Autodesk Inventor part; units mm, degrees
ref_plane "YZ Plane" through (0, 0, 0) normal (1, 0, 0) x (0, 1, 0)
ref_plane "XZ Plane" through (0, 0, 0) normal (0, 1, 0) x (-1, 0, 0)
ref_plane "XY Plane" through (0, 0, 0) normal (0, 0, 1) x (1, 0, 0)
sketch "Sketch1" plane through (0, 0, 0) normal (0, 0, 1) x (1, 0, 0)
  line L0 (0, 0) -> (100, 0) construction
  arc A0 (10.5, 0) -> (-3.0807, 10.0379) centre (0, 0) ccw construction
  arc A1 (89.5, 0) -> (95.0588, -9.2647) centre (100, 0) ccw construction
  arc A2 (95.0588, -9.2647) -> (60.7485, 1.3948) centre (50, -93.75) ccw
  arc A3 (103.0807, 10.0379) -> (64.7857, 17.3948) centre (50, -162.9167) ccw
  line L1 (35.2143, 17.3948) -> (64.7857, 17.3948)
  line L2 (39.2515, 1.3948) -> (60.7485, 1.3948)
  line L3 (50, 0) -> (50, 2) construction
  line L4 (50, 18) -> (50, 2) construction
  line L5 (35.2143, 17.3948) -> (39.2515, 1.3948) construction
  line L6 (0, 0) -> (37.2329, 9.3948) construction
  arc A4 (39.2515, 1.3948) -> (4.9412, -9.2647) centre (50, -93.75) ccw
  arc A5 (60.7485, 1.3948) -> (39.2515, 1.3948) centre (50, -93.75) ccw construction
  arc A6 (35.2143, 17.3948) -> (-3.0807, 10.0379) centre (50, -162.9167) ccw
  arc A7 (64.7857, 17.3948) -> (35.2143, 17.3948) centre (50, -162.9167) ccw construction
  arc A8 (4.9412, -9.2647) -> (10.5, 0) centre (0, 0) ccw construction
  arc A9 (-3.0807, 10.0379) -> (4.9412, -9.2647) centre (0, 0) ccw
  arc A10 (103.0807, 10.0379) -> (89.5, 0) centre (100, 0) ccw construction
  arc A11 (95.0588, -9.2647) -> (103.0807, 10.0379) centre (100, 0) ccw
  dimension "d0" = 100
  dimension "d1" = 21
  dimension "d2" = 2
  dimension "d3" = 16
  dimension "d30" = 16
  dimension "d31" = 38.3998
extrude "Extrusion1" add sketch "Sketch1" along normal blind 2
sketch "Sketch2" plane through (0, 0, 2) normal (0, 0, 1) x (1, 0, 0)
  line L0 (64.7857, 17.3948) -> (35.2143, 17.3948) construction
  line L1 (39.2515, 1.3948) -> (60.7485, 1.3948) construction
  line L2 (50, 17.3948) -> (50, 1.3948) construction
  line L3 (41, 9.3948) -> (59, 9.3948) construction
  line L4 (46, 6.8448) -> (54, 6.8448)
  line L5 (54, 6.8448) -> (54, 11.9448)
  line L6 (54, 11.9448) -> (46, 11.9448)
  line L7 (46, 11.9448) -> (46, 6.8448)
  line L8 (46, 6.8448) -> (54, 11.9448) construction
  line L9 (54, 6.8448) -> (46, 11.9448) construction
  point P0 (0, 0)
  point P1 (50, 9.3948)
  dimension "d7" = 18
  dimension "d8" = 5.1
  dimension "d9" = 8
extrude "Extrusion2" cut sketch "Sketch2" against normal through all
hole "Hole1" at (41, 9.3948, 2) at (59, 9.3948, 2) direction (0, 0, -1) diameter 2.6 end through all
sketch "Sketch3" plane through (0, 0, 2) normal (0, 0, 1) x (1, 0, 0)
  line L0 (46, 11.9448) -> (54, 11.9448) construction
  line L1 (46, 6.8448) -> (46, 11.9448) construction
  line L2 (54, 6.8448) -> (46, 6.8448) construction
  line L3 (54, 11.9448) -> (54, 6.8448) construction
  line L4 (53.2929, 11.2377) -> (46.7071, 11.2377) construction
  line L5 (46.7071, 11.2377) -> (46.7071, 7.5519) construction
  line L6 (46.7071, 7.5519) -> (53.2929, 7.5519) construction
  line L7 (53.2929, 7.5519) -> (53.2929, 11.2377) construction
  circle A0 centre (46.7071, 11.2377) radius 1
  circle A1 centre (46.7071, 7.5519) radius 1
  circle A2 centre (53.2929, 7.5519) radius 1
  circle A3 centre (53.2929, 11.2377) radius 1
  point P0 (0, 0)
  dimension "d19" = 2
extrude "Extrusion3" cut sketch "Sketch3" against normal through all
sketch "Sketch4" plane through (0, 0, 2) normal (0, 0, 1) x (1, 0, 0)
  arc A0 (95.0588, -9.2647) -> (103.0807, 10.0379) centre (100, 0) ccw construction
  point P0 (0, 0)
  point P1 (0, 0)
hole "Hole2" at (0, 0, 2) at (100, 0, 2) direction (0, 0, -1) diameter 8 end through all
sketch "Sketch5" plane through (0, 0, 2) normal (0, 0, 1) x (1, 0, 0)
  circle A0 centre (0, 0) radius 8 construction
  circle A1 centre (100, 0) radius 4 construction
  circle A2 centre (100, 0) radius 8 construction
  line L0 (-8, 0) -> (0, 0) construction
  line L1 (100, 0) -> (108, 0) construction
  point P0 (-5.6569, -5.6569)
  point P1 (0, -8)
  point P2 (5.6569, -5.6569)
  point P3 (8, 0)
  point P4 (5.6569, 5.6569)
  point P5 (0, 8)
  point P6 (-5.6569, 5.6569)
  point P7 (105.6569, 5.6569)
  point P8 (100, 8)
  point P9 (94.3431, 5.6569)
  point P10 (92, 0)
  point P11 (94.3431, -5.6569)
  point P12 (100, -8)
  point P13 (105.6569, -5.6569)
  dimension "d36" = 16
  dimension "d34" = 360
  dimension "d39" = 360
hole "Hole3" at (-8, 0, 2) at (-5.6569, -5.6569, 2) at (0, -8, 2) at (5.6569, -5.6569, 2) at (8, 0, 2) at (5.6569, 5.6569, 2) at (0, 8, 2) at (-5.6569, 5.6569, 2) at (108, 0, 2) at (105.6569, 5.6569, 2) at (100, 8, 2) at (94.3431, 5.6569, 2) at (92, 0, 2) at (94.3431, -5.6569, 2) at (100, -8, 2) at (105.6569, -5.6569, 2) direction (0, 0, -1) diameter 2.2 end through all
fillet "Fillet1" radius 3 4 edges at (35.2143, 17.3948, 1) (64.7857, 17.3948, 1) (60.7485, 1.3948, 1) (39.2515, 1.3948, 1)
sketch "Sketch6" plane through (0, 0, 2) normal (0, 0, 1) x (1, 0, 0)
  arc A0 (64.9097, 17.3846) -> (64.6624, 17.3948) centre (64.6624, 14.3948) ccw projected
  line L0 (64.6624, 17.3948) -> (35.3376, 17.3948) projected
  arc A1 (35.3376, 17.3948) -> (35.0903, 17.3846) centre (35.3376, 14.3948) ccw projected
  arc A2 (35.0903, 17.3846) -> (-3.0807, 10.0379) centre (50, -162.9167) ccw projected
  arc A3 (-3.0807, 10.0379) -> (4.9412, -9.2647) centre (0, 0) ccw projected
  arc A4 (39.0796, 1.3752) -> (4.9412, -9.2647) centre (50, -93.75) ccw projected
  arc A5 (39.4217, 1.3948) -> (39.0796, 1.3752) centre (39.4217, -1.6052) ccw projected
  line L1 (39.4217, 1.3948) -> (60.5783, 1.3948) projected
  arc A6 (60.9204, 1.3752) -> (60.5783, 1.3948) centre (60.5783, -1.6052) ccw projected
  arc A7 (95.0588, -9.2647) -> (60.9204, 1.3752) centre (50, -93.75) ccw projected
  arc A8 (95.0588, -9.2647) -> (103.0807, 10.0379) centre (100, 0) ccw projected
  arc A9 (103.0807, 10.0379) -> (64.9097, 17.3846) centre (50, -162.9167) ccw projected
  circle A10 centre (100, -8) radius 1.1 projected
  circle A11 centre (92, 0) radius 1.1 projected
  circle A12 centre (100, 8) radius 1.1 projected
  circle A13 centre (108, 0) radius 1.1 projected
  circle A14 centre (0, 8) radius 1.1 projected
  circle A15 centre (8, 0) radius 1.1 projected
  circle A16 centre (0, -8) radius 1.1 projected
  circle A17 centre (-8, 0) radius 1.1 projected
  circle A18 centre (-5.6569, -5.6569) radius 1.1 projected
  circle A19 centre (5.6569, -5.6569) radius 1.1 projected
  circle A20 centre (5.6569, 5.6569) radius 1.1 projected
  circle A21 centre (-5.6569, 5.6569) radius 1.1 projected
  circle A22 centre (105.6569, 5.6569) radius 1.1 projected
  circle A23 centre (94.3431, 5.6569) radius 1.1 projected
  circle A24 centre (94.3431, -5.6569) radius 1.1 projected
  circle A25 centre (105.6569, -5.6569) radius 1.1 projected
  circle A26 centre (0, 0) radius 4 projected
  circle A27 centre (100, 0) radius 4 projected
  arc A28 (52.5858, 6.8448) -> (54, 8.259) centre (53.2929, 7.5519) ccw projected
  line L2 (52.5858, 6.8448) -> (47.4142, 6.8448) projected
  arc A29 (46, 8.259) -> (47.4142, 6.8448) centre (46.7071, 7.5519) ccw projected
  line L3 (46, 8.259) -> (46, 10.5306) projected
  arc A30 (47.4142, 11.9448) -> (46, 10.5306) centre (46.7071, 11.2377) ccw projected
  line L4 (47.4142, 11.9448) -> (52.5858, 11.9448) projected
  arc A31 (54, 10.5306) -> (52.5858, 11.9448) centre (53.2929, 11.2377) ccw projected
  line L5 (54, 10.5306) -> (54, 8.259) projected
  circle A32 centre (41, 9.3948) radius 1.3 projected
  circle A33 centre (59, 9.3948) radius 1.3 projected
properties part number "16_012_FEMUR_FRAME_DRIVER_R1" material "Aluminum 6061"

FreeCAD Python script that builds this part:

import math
import FreeCAD as App
import Part
import Sketcher
Q = App.Units.Quantity


def edges_at(feature, points):
    """Names of the edges that pass closest to the given points."""
    edges = feature.Shape.Edges
    near = lambda p: min(range(len(edges)), key=lambda i: edges[i].distToShape(Part.Vertex(*p))[0])
    return sorted({f"Edge{near(p) + 1}" for p in points})


def add_polygon(sketch, points):
    """Adds a closed chain of lines whose ends are joined by coincident constraints."""
    first, n = sketch.GeometryCount, len(points)
    for a, b in zip(points, points[1:] + points[:1]):
        sketch.addGeometry(Part.LineSegment(App.Vector(*a, 0), App.Vector(*b, 0)), False)
    for i in range(n):
        sketch.addConstraint(Sketcher.Constraint("Coincident", first + i, 2, first + (i + 1) % n, 1))

doc = App.newDocument("Part")
body = doc.addObject("PartDesign::Body", "Body")

# Sketch on XY plane
sketch1 = body.newObject("Sketcher::SketchObject", "Sketch")
sketch1.AttachmentSupport = (doc.getObject("XY_Plane"), [""])
sketch1.MapMode = "FlatFace"
sketch1.addGeometry(Part.ArcOfCircle(Part.Circle(App.Vector(50, -94, 0), App.Vector(0, 0, 1), 96), math.radians(62), math.radians(84)), False)
sketch1.addGeometry(Part.ArcOfCircle(Part.Circle(App.Vector(100, 0, 0), App.Vector(0, 0, 1), 11), math.radians(-118), math.radians(73)), False)
sketch1.addGeometry(Part.ArcOfCircle(Part.Circle(App.Vector(50, -163, 0), App.Vector(0, 0, 1), 181), math.radians(72.94), math.radians(85.31)), False)
sketch1.addGeometry(Part.LineSegment(App.Vector(65, 17, 0), App.Vector(35, 17, 0)), False)
sketch1.addGeometry(Part.ArcOfCircle(Part.Circle(App.Vector(50, -163, 0), App.Vector(0, 0, 1), 181), math.radians(94.69), math.radians(107.06)), False)
sketch1.addGeometry(Part.ArcOfCircle(Part.Circle(App.Vector(0, 0, 0), App.Vector(0, 0, 1), 11), math.radians(107), math.radians(298)), False)
sketch1.addGeometry(Part.ArcOfCircle(Part.Circle(App.Vector(50, -94, 0), App.Vector(0, 0, 1), 96), math.radians(96), math.radians(118)), False)
sketch1.addGeometry(Part.LineSegment(App.Vector(39, 1, 0), App.Vector(61, 1, 0)), False)
sketch1.addConstraint(Sketcher.Constraint("Tangent", 0, 1, 1, 1))
sketch1.addConstraint(Sketcher.Constraint("Tangent", 1, 2, 2, 1))
sketch1.addConstraint(Sketcher.Constraint("Coincident", 2, 2, 3, 1))
sketch1.addConstraint(Sketcher.Constraint("Coincident", 3, 2, 4, 1))
sketch1.addConstraint(Sketcher.Constraint("Tangent", 4, 2, 5, 1))
sketch1.addConstraint(Sketcher.Constraint("Tangent", 5, 2, 6, 2))
sketch1.addConstraint(Sketcher.Constraint("Coincident", 6, 1, 7, 1))
sketch1.addConstraint(Sketcher.Constraint("Coincident", 7, 2, 0, 2))
sketch1.addConstraint(Sketcher.Constraint("Horizontal", 3))
sketch1.addConstraint(Sketcher.Constraint("Horizontal", 7))
sketch1.addConstraint(Sketcher.Constraint("Coincident", 5, 3, -1, 1))
sketch1.addConstraint(Sketcher.Constraint("Coincident", 4, 3, 2, 3))
sketch1.addConstraint(Sketcher.Constraint("Coincident", 6, 3, 0, 3))
sketch1.addConstraint(Sketcher.Constraint("Equal", 2, 4))
sketch1.addConstraint(Sketcher.Constraint("Equal", 1, 5))
sketch1.addConstraint(Sketcher.Constraint("Equal", 0, 6))
sketch1.addConstraint(Sketcher.Constraint("PointOnObject", 1, 3, -1))
sketch1.addConstraint(Sketcher.Constraint("Radius", 1, Q("10.5 mm")))
sketch1.addConstraint(Sketcher.Constraint("DistanceX", -1, 1, 1, 3, Q("100 mm")))
sketch1.addConstraint(Sketcher.Constraint("DistanceY", 6, 1, 3, 2, Q("16 mm")))
sketch1.addConstraint(Sketcher.Constraint("Radius", 0, Q("95.75 mm")))
sketch1.addConstraint(Sketcher.Constraint("Radius", 2, Q("180.9167 mm")))
sketch1.addConstraint(Sketcher.Constraint("DistanceX", 7, 1, 7, 2, Q("21.497 mm")))
pad1 = body.newObject("PartDesign::Pad", "Pad")
pad1.Profile = sketch1
pad1.Length = 2

# Sketch on XY plane
sketch2 = body.newObject("Sketcher::SketchObject", "Sketch001")
sketch2.AttachmentSupport = (doc.getObject("XY_Plane"), [""])
sketch2.MapMode = "FlatFace"
sketch2.AttachmentOffset = App.Placement(App.Vector(0, 0, 2), App.Rotation())
add_polygon(sketch2, [(46, 12), (46, 7), (54, 7), (54, 12)])  # lines 0-3
sketch2.addConstraint(Sketcher.Constraint("Vertical", 0))
sketch2.addConstraint(Sketcher.Constraint("Horizontal", 1))
sketch2.addConstraint(Sketcher.Constraint("Vertical", 2))
sketch2.addConstraint(Sketcher.Constraint("Horizontal", 3))
sketch2.addConstraint(Sketcher.Constraint("DistanceX", 1, 1, 1, 2, Q("8 mm")))
sketch2.addConstraint(Sketcher.Constraint("DistanceY", 0, 2, 0, 1, Q("5.1 mm")))
sketch2.addConstraint(Sketcher.Constraint("DistanceX", -1, 1, 0, 2, Q("46 mm")))
sketch2.addConstraint(Sketcher.Constraint("DistanceY", -1, 1, 0, 2, Q("6.8448 mm")))
pocket1 = body.newObject("PartDesign::Pocket", "Pocket")
pocket1.Profile = sketch2
pocket1.Type = "ThroughAll"

# Sketch on XY plane
sketch3 = body.newObject("Sketcher::SketchObject", "Sketch002")
sketch3.AttachmentSupport = (doc.getObject("XY_Plane"), [""])
sketch3.MapMode = "FlatFace"
sketch3.AttachmentOffset = App.Placement(App.Vector(0, 0, 2), App.Rotation())
sketch3.addGeometry(Part.Circle(App.Vector(41, 9.4, 0), App.Vector(0, 0, 1), 1.3), False)
sketch3.addGeometry(Part.Circle(App.Vector(59, 9.4, 0), App.Vector(0, 0, 1), 1.3), False)
sketch3.addConstraint(Sketcher.Constraint("Equal", 0, 1))
sketch3.addConstraint(Sketcher.Constraint("Horizontal", 0, 3, 1, 3))
sketch3.addConstraint(Sketcher.Constraint("Diameter", 0, Q("2.6 mm")))
sketch3.addConstraint(Sketcher.Constraint("DistanceX", -1, 1, 0, 3, Q("41 mm")))
sketch3.addConstraint(Sketcher.Constraint("DistanceX", -1, 1, 1, 3, Q("59 mm")))
sketch3.addConstraint(Sketcher.Constraint("DistanceY", -1, 1, 0, 3, Q("9.3948 mm")))
doc.recompute()
hole = body.newObject("PartDesign::Hole", "Hole")
hole.Profile = sketch3
hole.ThreadType = "None"
hole.Diameter = 2.6
hole.DepthType = "ThroughAll"

# Sketch on XY plane
sketch4 = body.newObject("Sketcher::SketchObject", "Sketch003")
sketch4.AttachmentSupport = (doc.getObject("XY_Plane"), [""])
sketch4.MapMode = "FlatFace"
sketch4.AttachmentOffset = App.Placement(App.Vector(0, 0, 2), App.Rotation())
sketch4.addGeometry(Part.Circle(App.Vector(46.7, 11.2, 0), App.Vector(0, 0, 1), 1), False)
sketch4.addGeometry(Part.Circle(App.Vector(46.7, 7.6, 0), App.Vector(0, 0, 1), 1), False)
sketch4.addGeometry(Part.Circle(App.Vector(53.3, 7.6, 0), App.Vector(0, 0, 1), 1), False)
sketch4.addGeometry(Part.Circle(App.Vector(53.3, 11.2, 0), App.Vector(0, 0, 1), 1), False)
sketch4.addConstraint(Sketcher.Constraint("Equal", 0, 1))
sketch4.addConstraint(Sketcher.Constraint("Equal", 1, 2))
sketch4.addConstraint(Sketcher.Constraint("Equal", 2, 3))
sketch4.addConstraint(Sketcher.Constraint("Horizontal", 1, 3, 2, 3))
sketch4.addConstraint(Sketcher.Constraint("Horizontal", 0, 3, 3, 3))
sketch4.addConstraint(Sketcher.Constraint("Vertical", 0, 3, 1, 3))
sketch4.addConstraint(Sketcher.Constraint("Vertical", 2, 3, 3, 3))
sketch4.addConstraint(Sketcher.Constraint("Diameter", 0, Q("2 mm")))
sketch4.addConstraint(Sketcher.Constraint("DistanceX", -1, 1, 0, 3, Q("46.707 mm")))
sketch4.addConstraint(Sketcher.Constraint("DistanceY", -1, 1, 1, 3, Q("7.552 mm")))
sketch4.addConstraint(Sketcher.Constraint("DistanceX", -1, 1, 2, 3, Q("53.293 mm")))
sketch4.addConstraint(Sketcher.Constraint("DistanceY", -1, 1, 0, 3, Q("11.2377 mm")))
pocket2 = body.newObject("PartDesign::Pocket", "Pocket001")
pocket2.Profile = sketch4
pocket2.Type = "ThroughAll"

# Sketch on XY plane
sketch5 = body.newObject("Sketcher::SketchObject", "Sketch004")
sketch5.AttachmentSupport = (doc.getObject("XY_Plane"), [""])
sketch5.MapMode = "FlatFace"
sketch5.AttachmentOffset = App.Placement(App.Vector(0, 0, 2), App.Rotation())
sketch5.addGeometry(Part.Circle(App.Vector(0, 0, 0), App.Vector(0, 0, 1), 4), False)
sketch5.addGeometry(Part.Circle(App.Vector(100, 0, 0), App.Vector(0, 0, 1), 4), False)
sketch5.addConstraint(Sketcher.Constraint("Coincident", 0, 3, -1, 1))
sketch5.addConstraint(Sketcher.Constraint("Equal", 0, 1))
sketch5.addConstraint(Sketcher.Constraint("PointOnObject", 1, 3, -1))
sketch5.addConstraint(Sketcher.Constraint("Diameter", 0, Q("8 mm")))
sketch5.addConstraint(Sketcher.Constraint("DistanceX", -1, 1, 1, 3, Q("100 mm")))
doc.recompute()
hole2 = body.newObject("PartDesign::Hole", "Hole001")
hole2.Profile = sketch5
hole2.ThreadType = "None"
hole2.Diameter = 8
hole2.DepthType = "ThroughAll"

# Sketch on XY plane
sketch6 = body.newObject("Sketcher::SketchObject", "Sketch005")
sketch6.AttachmentSupport = (doc.getObject("XY_Plane"), [""])
sketch6.MapMode = "FlatFace"
sketch6.AttachmentOffset = App.Placement(App.Vector(0, 0, 2), App.Rotation())
sketch6.addGeometry(Part.Circle(App.Vector(-8, 0, 0), App.Vector(0, 0, 1), 1.1), False)
sketch6.addGeometry(Part.Circle(App.Vector(-5.7, -5.7, 0), App.Vector(0, 0, 1), 1.1), False)
sketch6.addGeometry(Part.Circle(App.Vector(0, -8, 0), App.Vector(0, 0, 1), 1.1), False)
sketch6.addGeometry(Part.Circle(App.Vector(5.7, -5.7, 0), App.Vector(0, 0, 1), 1.1), False)
sketch6.addGeometry(Part.Circle(App.Vector(8, 0, 0), App.Vector(0, 0, 1), 1.1), False)
sketch6.addGeometry(Part.Circle(App.Vector(5.7, 5.7, 0), App.Vector(0, 0, 1), 1.1), False)
sketch6.addGeometry(Part.Circle(App.Vector(0, 8, 0), App.Vector(0, 0, 1), 1.1), False)
sketch6.addGeometry(Part.Circle(App.Vector(-5.7, 5.7, 0), App.Vector(0, 0, 1), 1.1), False)
sketch6.addGeometry(Part.Circle(App.Vector(108, 0, 0), App.Vector(0, 0, 1), 1.1), False)
sketch6.addGeometry(Part.Circle(App.Vector(105.7, 5.7, 0), App.Vector(0, 0, 1), 1.1), False)
sketch6.addGeometry(Part.Circle(App.Vector(100, 8, 0), App.Vector(0, 0, 1), 1.1), False)
sketch6.addGeometry(Part.Circle(App.Vector(94.3, 5.7, 0), App.Vector(0, 0, 1), 1.1), False)
sketch6.addGeometry(Part.Circle(App.Vector(92, 0, 0), App.Vector(0, 0, 1), 1.1), False)
sketch6.addGeometry(Part.Circle(App.Vector(94.3, -5.7, 0), App.Vector(0, 0, 1), 1.1), False)
sketch6.addGeometry(Part.Circle(App.Vector(100, -8, 0), App.Vector(0, 0, 1), 1.1), False)
sketch6.addGeometry(Part.Circle(App.Vector(105.7, -5.7, 0), App.Vector(0, 0, 1), 1.1), False)
sketch6.addConstraint(Sketcher.Constraint("Equal", 0, 1))
sketch6.addConstraint(Sketcher.Constraint("Equal", 1, 2))
sketch6.addConstraint(Sketcher.Constraint("Equal", 2, 3))
sketch6.addConstraint(Sketcher.Constraint("Equal", 3, 4))
sketch6.addConstraint(Sketcher.Constraint("Equal", 4, 5))
sketch6.addConstraint(Sketcher.Constraint("Equal", 5, 6))
sketch6.addConstraint(Sketcher.Constraint("Equal", 6, 7))
sketch6.addConstraint(Sketcher.Constraint("Equal", 7, 8))
sketch6.addConstraint(Sketcher.Constraint("Equal", 8, 9))
sketch6.addConstraint(Sketcher.Constraint("Equal", 9, 10))
sketch6.addConstraint(Sketcher.Constraint("Equal", 10, 11))
sketch6.addConstraint(Sketcher.Constraint("Equal", 11, 12))
sketch6.addConstraint(Sketcher.Constraint("Equal", 12, 13))
sketch6.addConstraint(Sketcher.Constraint("Equal", 13, 14))
sketch6.addConstraint(Sketcher.Constraint("Equal", 14, 15))
sketch6.addConstraint(Sketcher.Constraint("Symmetric", 0, 3, 4, 3, -1, 1))
sketch6.addConstraint(Sketcher.Constraint("Symmetric", 1, 3, 5, 3, -1, 1))
sketch6.addConstraint(Sketcher.Constraint("Symmetric", 2, 3, 6, 3, -1, 1))
sketch6.addConstraint(Sketcher.Constraint("Symmetric", 3, 3, 7, 3, -1, 1))
sketch6.addConstraint(Sketcher.Constraint("Symmetric", 1, 3, 3, 3, -2))
sketch6.addConstraint(Sketcher.Constraint("Symmetric", 11, 3, 13, 3, -1))
sketch6.addConstraint(Sketcher.Constraint("Symmetric", 10, 3, 14, 3, -1))
sketch6.addConstraint(Sketcher.Constraint("Symmetric", 9, 3, 15, 3, -1))
sketch6.addConstraint(Sketcher.Constraint("PointOnObject", 0, 3, -1))
sketch6.addConstraint(Sketcher.Constraint("PointOnObject", 2, 3, -2))
sketch6.addConstraint(Sketcher.Constraint("PointOnObject", 8, 3, -1))
sketch6.addConstraint(Sketcher.Constraint("PointOnObject", 12, 3, -1))
sketch6.addConstraint(Sketcher.Constraint("Horizontal", 7, 3, 9, 3))
sketch6.addConstraint(Sketcher.Constraint("Horizontal", 6, 3, 10, 3))
sketch6.addConstraint(Sketcher.Constraint("Horizontal", 9, 3, 11, 3))
sketch6.addConstraint(Sketcher.Constraint("Diameter", 0, Q("2.2 mm")))
sketch6.addConstraint(Sketcher.Constraint("DistanceX", 0, 3, -1, 1, Q("8 mm")))
sketch6.addConstraint(Sketcher.Constraint("DistanceY", 2, 3, -1, 1, Q("8 mm")))
sketch6.addConstraint(Sketcher.Constraint("DistanceX", -1, 1, 8, 3, Q("108 mm")))
sketch6.addConstraint(Sketcher.Constraint("DistanceX", -1, 1, 10, 3, Q("100 mm")))
sketch6.addConstraint(Sketcher.Constraint("DistanceX", -1, 1, 12, 3, Q("92 mm")))
sketch6.addConstraint(Sketcher.Constraint("DistanceX", 5, 3, 9, 3, Q("100 mm")))
sketch6.addConstraint(Sketcher.Constraint("DistanceX", 1, 3, -1, 1, Q("5.657 mm")))
sketch6.addConstraint(Sketcher.Constraint("DistanceY", 1, 3, -1, 1, Q("5.657 mm")))
sketch6.addConstraint(Sketcher.Constraint("DistanceX", -1, 1, 11, 3, Q("94.343 mm")))
doc.recompute()
hole3 = body.newObject("PartDesign::Hole", "Hole002")
hole3.Profile = sketch6
hole3.ThreadType = "None"
hole3.Diameter = 2.2
hole3.DepthType = "ThroughAll"
doc.recompute()

fillet = body.newObject("PartDesign::Fillet", "Fillet")
fillet.Base = (hole3, edges_at(hole3, [
    (35.214, 17.395, 1),
    (64.786, 17.395, 1),
    (60.748, 1.395, 1),
    (39.252, 1.395, 1),
]))
fillet.Radius = 3

doc.recompute()
